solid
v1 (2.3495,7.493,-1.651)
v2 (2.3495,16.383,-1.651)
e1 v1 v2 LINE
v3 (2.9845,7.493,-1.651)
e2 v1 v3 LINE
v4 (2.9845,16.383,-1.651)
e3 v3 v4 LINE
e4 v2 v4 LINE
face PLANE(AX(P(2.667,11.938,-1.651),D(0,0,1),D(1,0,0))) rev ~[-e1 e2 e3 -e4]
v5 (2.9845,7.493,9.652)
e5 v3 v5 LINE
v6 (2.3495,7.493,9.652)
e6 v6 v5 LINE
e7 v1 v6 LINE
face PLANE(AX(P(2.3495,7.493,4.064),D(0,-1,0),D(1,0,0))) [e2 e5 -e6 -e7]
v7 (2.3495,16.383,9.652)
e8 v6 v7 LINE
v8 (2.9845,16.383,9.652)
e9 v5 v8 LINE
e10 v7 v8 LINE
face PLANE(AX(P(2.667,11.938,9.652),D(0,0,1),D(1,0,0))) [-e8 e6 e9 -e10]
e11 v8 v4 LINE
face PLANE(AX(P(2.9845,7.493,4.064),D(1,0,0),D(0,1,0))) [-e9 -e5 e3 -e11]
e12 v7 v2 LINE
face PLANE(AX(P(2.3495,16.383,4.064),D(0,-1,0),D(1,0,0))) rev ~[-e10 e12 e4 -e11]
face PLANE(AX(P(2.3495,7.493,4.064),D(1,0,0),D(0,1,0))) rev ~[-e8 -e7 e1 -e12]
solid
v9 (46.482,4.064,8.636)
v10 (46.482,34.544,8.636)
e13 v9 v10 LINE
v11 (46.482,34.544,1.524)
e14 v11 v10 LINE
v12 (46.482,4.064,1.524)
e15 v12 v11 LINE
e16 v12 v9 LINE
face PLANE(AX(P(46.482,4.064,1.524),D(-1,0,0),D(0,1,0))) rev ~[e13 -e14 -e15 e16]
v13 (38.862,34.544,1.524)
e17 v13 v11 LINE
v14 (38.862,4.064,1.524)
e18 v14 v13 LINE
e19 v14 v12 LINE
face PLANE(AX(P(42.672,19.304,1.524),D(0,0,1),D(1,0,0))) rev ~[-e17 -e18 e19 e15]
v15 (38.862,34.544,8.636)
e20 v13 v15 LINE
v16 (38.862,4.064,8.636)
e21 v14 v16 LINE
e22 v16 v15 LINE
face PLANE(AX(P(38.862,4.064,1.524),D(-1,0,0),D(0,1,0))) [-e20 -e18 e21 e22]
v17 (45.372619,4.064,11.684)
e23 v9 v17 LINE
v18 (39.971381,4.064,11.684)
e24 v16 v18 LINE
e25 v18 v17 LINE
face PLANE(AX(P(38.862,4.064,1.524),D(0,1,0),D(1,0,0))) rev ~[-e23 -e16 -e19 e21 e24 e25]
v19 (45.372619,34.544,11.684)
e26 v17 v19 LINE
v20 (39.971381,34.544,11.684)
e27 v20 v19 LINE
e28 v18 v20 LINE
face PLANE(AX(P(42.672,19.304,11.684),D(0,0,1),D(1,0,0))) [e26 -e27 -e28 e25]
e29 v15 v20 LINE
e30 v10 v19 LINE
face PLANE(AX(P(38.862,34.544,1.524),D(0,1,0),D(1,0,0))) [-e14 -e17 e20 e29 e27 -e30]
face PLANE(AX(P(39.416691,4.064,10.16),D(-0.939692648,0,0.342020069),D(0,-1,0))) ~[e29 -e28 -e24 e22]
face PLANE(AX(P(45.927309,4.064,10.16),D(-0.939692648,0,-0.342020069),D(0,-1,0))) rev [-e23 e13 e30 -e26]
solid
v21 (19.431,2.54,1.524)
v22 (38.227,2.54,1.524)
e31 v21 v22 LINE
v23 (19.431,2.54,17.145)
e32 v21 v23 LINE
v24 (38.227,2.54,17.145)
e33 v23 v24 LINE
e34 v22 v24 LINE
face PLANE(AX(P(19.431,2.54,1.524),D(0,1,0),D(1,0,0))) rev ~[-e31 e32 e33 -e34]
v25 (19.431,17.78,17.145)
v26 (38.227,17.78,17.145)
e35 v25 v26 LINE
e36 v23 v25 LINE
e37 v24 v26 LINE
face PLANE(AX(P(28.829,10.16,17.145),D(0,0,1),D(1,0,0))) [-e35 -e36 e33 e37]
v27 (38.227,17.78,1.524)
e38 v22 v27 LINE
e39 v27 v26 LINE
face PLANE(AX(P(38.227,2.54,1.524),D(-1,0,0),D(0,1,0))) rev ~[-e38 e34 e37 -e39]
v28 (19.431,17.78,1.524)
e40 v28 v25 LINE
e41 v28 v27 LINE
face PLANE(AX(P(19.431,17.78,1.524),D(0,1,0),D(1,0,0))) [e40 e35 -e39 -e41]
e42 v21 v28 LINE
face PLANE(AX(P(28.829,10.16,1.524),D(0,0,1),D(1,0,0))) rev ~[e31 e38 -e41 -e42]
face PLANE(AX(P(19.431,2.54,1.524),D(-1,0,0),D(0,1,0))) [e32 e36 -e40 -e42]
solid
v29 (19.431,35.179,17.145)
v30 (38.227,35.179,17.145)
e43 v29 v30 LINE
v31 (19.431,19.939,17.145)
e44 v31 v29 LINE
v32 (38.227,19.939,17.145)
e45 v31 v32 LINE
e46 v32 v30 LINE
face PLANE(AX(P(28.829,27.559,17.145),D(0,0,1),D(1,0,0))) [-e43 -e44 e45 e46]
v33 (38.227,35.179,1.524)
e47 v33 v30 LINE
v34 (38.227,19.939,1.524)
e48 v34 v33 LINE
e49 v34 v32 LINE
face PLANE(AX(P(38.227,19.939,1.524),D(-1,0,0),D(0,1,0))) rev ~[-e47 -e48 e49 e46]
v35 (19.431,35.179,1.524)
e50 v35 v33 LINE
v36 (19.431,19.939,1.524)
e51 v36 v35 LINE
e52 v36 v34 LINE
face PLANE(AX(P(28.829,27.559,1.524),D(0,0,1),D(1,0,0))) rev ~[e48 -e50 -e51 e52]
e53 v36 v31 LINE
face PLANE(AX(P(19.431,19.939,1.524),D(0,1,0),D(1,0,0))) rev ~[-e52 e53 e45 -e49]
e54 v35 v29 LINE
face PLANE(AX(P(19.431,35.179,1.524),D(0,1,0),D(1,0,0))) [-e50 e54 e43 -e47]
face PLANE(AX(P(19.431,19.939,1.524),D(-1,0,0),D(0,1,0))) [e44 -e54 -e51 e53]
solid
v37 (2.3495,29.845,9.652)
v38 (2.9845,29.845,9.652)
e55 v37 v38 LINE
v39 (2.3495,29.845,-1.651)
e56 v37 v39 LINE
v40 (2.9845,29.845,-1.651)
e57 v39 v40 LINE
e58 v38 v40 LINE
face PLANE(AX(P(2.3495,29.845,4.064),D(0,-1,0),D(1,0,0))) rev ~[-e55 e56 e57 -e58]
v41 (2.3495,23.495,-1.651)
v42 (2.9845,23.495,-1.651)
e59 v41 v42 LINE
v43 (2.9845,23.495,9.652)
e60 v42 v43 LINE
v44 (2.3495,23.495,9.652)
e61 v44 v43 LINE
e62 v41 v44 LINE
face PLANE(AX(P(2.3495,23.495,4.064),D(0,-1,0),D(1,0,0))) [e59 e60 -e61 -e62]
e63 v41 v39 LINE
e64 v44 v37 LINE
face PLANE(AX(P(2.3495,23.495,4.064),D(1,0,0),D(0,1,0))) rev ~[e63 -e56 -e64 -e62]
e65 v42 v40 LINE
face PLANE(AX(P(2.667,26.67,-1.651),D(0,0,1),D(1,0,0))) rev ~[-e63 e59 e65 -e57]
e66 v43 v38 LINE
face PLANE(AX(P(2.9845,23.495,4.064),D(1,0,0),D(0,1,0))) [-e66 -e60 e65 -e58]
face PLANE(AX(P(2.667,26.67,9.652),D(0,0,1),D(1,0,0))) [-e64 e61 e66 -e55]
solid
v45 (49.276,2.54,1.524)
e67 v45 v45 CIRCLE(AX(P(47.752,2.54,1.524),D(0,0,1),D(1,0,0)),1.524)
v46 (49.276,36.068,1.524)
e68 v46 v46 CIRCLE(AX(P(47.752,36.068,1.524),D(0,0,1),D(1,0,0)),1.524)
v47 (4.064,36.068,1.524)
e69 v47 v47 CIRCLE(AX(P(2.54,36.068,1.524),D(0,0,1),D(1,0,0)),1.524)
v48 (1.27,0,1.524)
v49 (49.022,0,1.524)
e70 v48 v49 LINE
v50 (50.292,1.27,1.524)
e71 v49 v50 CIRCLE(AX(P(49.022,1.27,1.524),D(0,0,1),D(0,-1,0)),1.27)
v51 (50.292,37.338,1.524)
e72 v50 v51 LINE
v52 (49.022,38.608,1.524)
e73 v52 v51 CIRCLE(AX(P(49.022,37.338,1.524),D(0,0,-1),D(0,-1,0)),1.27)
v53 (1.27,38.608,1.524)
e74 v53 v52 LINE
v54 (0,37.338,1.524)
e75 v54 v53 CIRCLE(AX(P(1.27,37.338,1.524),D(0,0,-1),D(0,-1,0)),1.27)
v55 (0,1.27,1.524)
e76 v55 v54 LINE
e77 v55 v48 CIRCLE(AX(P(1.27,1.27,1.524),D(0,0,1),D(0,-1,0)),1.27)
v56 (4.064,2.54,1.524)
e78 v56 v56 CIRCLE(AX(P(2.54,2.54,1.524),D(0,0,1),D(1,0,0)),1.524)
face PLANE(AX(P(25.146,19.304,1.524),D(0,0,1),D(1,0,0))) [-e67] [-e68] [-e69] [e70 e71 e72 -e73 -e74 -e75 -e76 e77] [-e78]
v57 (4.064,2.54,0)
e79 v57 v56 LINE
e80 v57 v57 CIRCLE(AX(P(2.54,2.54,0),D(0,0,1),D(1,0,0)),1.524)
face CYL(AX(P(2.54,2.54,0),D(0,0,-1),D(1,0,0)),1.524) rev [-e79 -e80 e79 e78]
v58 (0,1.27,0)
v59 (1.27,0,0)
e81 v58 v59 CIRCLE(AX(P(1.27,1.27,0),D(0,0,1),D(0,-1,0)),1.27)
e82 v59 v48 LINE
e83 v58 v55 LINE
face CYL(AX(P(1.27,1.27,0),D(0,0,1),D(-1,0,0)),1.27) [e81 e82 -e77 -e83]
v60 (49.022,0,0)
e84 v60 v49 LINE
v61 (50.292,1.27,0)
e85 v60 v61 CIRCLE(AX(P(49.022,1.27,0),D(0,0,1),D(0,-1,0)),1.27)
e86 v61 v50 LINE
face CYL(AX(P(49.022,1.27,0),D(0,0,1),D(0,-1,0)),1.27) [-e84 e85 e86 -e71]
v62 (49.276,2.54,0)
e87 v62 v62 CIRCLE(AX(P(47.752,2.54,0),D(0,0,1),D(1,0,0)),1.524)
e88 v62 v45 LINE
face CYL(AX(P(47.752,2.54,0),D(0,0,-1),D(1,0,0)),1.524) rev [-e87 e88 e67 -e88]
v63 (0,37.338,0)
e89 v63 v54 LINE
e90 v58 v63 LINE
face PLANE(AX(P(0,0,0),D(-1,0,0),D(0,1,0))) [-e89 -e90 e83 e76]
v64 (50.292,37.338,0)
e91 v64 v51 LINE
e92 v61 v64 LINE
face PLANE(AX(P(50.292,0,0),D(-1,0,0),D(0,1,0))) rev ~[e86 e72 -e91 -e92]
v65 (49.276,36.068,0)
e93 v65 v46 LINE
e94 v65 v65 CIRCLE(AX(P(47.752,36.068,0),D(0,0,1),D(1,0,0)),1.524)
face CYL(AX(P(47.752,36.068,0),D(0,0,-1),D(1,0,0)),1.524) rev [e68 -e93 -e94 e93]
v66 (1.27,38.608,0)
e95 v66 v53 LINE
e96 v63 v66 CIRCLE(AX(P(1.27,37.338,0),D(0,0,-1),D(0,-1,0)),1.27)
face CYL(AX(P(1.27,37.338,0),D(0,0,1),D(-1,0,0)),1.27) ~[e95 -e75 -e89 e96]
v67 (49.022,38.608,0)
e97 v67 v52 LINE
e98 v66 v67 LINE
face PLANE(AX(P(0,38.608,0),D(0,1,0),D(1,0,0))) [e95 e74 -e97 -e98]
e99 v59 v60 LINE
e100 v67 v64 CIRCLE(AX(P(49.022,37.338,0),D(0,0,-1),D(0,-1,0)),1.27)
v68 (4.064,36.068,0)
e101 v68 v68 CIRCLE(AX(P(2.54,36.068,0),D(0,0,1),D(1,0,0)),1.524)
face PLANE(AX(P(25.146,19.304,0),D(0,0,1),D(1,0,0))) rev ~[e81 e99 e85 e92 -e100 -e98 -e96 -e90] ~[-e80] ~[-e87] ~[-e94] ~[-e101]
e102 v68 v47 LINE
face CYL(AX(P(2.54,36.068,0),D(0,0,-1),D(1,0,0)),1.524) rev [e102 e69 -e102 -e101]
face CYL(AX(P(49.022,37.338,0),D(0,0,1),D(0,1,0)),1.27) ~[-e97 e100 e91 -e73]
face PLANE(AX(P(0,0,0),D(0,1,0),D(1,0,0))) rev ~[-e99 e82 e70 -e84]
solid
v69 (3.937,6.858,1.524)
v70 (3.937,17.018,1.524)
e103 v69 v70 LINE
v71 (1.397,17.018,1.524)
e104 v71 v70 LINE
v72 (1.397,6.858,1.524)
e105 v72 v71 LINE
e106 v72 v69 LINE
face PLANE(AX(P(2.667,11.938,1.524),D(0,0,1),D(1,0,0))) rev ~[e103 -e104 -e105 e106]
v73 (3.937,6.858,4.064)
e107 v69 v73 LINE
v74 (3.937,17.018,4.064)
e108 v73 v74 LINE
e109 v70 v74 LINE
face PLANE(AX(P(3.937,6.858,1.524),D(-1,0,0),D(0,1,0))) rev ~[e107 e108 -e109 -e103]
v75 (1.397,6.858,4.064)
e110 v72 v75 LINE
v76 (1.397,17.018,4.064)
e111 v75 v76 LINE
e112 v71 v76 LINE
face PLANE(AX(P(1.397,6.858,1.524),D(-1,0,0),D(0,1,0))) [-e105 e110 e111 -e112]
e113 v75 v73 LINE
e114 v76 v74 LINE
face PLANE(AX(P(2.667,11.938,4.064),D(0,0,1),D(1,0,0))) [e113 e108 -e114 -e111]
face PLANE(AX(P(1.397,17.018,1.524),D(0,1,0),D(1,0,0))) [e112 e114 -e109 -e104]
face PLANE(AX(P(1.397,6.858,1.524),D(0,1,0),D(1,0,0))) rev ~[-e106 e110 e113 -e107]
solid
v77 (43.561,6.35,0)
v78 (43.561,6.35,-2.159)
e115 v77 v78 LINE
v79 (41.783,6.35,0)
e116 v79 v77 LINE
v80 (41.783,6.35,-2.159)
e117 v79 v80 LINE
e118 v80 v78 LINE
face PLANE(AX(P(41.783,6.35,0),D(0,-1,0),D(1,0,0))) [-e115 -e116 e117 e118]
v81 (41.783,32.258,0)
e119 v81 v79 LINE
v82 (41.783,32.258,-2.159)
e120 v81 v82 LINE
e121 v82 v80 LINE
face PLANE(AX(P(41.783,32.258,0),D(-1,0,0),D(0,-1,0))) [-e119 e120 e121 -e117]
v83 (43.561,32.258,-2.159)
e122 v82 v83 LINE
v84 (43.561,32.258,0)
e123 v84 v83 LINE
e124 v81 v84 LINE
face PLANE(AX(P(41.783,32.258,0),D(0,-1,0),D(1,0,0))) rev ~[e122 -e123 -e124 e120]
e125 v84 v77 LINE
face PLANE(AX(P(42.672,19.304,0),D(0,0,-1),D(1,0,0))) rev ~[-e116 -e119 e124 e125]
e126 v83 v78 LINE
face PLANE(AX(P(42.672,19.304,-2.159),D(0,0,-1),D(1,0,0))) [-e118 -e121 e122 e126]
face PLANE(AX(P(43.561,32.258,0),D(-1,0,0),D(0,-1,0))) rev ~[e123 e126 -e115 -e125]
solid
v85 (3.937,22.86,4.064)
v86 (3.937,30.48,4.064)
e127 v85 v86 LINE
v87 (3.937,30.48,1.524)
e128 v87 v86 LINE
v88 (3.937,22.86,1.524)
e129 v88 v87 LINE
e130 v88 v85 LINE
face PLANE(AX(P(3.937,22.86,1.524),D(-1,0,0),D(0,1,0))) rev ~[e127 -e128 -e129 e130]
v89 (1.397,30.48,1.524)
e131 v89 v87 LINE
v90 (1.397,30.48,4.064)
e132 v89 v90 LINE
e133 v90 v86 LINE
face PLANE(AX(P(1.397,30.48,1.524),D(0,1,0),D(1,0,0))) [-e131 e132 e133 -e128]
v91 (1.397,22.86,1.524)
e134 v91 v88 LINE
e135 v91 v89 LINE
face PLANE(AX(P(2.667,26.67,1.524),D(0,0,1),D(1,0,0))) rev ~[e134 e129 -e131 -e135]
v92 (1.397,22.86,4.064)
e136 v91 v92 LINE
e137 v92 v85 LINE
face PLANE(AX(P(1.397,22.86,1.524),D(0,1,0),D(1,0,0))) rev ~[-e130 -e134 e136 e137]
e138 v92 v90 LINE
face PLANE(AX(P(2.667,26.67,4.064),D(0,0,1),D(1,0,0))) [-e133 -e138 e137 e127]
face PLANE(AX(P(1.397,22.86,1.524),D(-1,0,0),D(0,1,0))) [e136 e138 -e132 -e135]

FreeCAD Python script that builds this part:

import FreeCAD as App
import Part
import Sketcher
from FreeCAD import Vector
Q = App.Units.Quantity


def edges_at(feature, points):
    """Names of the edges that pass closest to the given points."""
    edges = feature.Shape.Edges
    near = lambda p: min(range(len(edges)), key=lambda i: edges[i].distToShape(Part.Vertex(*p))[0])
    return sorted({f"Edge{near(p) + 1}" for p in points})

doc = App.newDocument("Part")
body = doc.addObject("PartDesign::Body", "Body")

sketch1 = body.newObject("Sketcher::SketchObject", "Sketch")
sketch1.AttachmentSupport = (doc.getObject("XY_Plane"), [""])
sketch1.MapMode = "FlatFace"
sketch1.addGeometry([
    Part.LineSegment(Vector(0, 38.608, 0), Vector(0, 0, 0)),
    Part.LineSegment(Vector(0, 0, 0), Vector(50.292, 0, 0)),
    Part.LineSegment(Vector(50.292, 0, 0), Vector(50.292, 38.608, 0)),
    Part.LineSegment(Vector(50.292, 38.608, 0), Vector(0, 38.608, 0)),
    Part.Circle(Vector(2.54, 2.54, 0), Vector(0, 0, 1), 1.524),
    Part.Circle(Vector(47.752, 2.54, 0), Vector(0, 0, 1), 1.524),
    Part.Circle(Vector(2.54, 36.068, 0), Vector(0, 0, 1), 1.524),
    Part.Circle(Vector(47.752, 36.068, 0), Vector(0, 0, 1), 1.524),
], False)
sketch1.addConstraint([
    Sketcher.Constraint("Coincident", 0, 2, 1, 1),
    Sketcher.Constraint("Coincident", 1, 2, 2, 1),
    Sketcher.Constraint("Coincident", 2, 2, 3, 1),
    Sketcher.Constraint("Coincident", 3, 2, 0, 1),
    Sketcher.Constraint("Vertical", 0),
    Sketcher.Constraint("Horizontal", 1),
    Sketcher.Constraint("Vertical", 2),
    Sketcher.Constraint("Horizontal", 3),
    Sketcher.Constraint("Coincident", 0, 2, -1, 1),
    Sketcher.Constraint("Equal", 4, 5),
    Sketcher.Constraint("Equal", 5, 6),
    Sketcher.Constraint("Equal", 6, 7),
    Sketcher.Constraint("Horizontal", 4, 3, 5, 3),
    Sketcher.Constraint("Horizontal", 6, 3, 7, 3),
    Sketcher.Constraint("Vertical", 4, 3, 6, 3),
    Sketcher.Constraint("Vertical", 5, 3, 7, 3),
    Sketcher.Constraint("Diameter", 4, Q("0.12 in")),
    Sketcher.Constraint("DistanceX", 1, 1, 1, 2, Q("1.98 in")),
    Sketcher.Constraint("DistanceY", 0, 2, 0, 1, Q("1.52 in")),
    Sketcher.Constraint("DistanceX", -1, 1, 4, 3, Q("0.1 in")),
    Sketcher.Constraint("DistanceY", -1, 1, 4, 3, Q("0.1 in")),
    Sketcher.Constraint("DistanceX", 5, 3, 1, 2, Q("0.1 in")),
    Sketcher.Constraint("DistanceY", 7, 3, 2, 2, Q("0.1 in")),
])
pad1 = body.newObject("PartDesign::Pad", "Pad")
pad1.Profile = sketch1
pad1.Length = Q("0.06 in")
doc.recompute()

fillet = body.newObject("PartDesign::Fillet", "Fillet")
fillet.Base = (pad1, edges_at(pad1, [
    (50.292, 38.608, 0.762),
    (0, 38.608, 0.762),
    (0, 0, 0.762),
    (50.292, 0, 0.762),
]))
fillet.Radius = Q("0.05 in")
body2 = doc.addObject("PartDesign::Body", "Body001")

sketch2 = body2.newObject("Sketcher::SketchObject", "Sketch001")
sketch2.AttachmentSupport = (doc.getObject("XY_Plane001"), [""])
sketch2.MapMode = "FlatFace"
sketch2.AttachmentOffset = App.Placement(Vector(0, 0, 0.06 * 25.4), App.Rotation())
sketch2.addGeometry([
    Part.LineSegment(Vector(38.862, 34.544, 0), Vector(38.862, 4.064, 0)),
    Part.LineSegment(Vector(38.862, 4.064, 0), Vector(46.482, 4.064, 0)),
    Part.LineSegment(Vector(46.482, 4.064, 0), Vector(46.482, 34.544, 0)),
    Part.LineSegment(Vector(46.482, 34.544, 0), Vector(38.862, 34.544, 0)),
], False)
sketch2.addConstraint([
    Sketcher.Constraint("Coincident", 0, 2, 1, 1),
    Sketcher.Constraint("Coincident", 1, 2, 2, 1),
    Sketcher.Constraint("Coincident", 2, 2, 3, 1),
    Sketcher.Constraint("Coincident", 3, 2, 0, 1),
    Sketcher.Constraint("Vertical", 0),
    Sketcher.Constraint("Horizontal", 1),
    Sketcher.Constraint("Vertical", 2),
    Sketcher.Constraint("Horizontal", 3),
    Sketcher.Constraint("DistanceX", 1, 1, 1, 2, Q("0.3 in")),
    Sketcher.Constraint("DistanceY", 0, 2, 0, 1, Q("1.2 in")),
    Sketcher.Constraint("DistanceX", -1, 1, 0, 2, Q("1.53 in")),
    Sketcher.Constraint("DistanceY", -1, 1, 0, 2, Q("0.16 in")),
])
pad2 = body2.newObject("PartDesign::Pad", "Pad001")
pad2.Profile = sketch2
pad2.Length = Q("0.4 in")
doc.recompute()

chamfer = body2.newObject("PartDesign::Chamfer", "Chamfer")
chamfer.Base = (pad2, edges_at(pad2, [(46.482, 19.304, 11.684), (38.862, 19.304, 11.684)]))
chamfer.ChamferType = "Two distances"
chamfer.Size = Q("0.12 in")
chamfer.Size2 = 1.109381
body3 = doc.addObject("PartDesign::Body", "Body002")
body3.AllowCompound = True

sketch3 = body3.newObject("Sketcher::SketchObject", "Sketch002")
sketch3.AttachmentSupport = (doc.getObject("XY_Plane002"), [""])
sketch3.MapMode = "FlatFace"
sketch3.AttachmentOffset = App.Placement(Vector(0, 0, 0.06 * 25.4), App.Rotation())
sketch3.addGeometry([
    Part.LineSegment(Vector(19.431, 35.179, 0), Vector(19.431, 19.939, 0)),
    Part.LineSegment(Vector(19.431, 19.939, 0), Vector(38.227, 19.939, 0)),
    Part.LineSegment(Vector(38.227, 19.939, 0), Vector(38.227, 35.179, 0)),
    Part.LineSegment(Vector(38.227, 35.179, 0), Vector(19.431, 35.179, 0)),
    Part.LineSegment(Vector(19.431, 17.78, 0), Vector(19.431, 2.54, 0)),
    Part.LineSegment(Vector(19.431, 2.54, 0), Vector(38.227, 2.54, 0)),
    Part.LineSegment(Vector(38.227, 2.54, 0), Vector(38.227, 17.78, 0)),
    Part.LineSegment(Vector(38.227, 17.78, 0), Vector(19.431, 17.78, 0)),
], False)
sketch3.addConstraint([
    Sketcher.Constraint("Coincident", 0, 2, 1, 1),
    Sketcher.Constraint("Coincident", 1, 2, 2, 1),
    Sketcher.Constraint("Coincident", 2, 2, 3, 1),
    Sketcher.Constraint("Coincident", 3, 2, 0, 1),
    Sketcher.Constraint("Coincident", 4, 2, 5, 1),
    Sketcher.Constraint("Coincident", 5, 2, 6, 1),
    Sketcher.Constraint("Coincident", 6, 2, 7, 1),
    Sketcher.Constraint("Coincident", 7, 2, 4, 1),
    Sketcher.Constraint("Vertical", 0),
    Sketcher.Constraint("Horizontal", 1),
    Sketcher.Constraint("Vertical", 2),
    Sketcher.Constraint("Horizontal", 3),
    Sketcher.Constraint("Vertical", 4),
    Sketcher.Constraint("Horizontal", 5),
    Sketcher.Constraint("Vertical", 6),
    Sketcher.Constraint("Horizontal", 7),
    Sketcher.Constraint("Vertical", 3, 2, 4, 2),
    Sketcher.Constraint("Vertical", 2, 2, 5, 2),
    Sketcher.Constraint("Equal", 2, 4),
    Sketcher.Constraint("DistanceY", 0, 2, 0, 1, Q("0.6 in")),
    Sketcher.Constraint("DistanceX", 1, 1, 1, 2, Q("0.74 in")),
    Sketcher.Constraint("DistanceY", -1, 1, 4, 2, Q("0.1 in")),
    Sketcher.Constraint("DistanceX", -1, 1, 0, 2, Q("0.765 in")),
    Sketcher.Constraint("DistanceY", -1, 1, 0, 2, Q("0.785 in")),
])
pad3 = body3.newObject("PartDesign::Pad", "Pad002")
pad3.Profile = sketch3
pad3.Length = Q("0.615 in")
body4 = doc.addObject("PartDesign::Body", "Body003")
body4.AllowCompound = True

sketch4 = body4.newObject("Sketcher::SketchObject", "Sketch003")
sketch4.AttachmentSupport = (doc.getObject("XY_Plane003"), [""])
sketch4.MapMode = "FlatFace"
sketch4.AttachmentOffset = App.Placement(Vector(0, 0, 0.06 * 25.4), App.Rotation())
sketch4.addGeometry([
    Part.LineSegment(Vector(1.397, 30.48, 0), Vector(1.397, 22.86, 0)),
    Part.LineSegment(Vector(1.397, 22.86, 0), Vector(3.937, 22.86, 0)),
    Part.LineSegment(Vector(3.937, 22.86, 0), Vector(3.937, 30.48, 0)),
    Part.LineSegment(Vector(3.937, 30.48, 0), Vector(1.397, 30.48, 0)),
    Part.LineSegment(Vector(1.397, 17.018, 0), Vector(1.397, 6.858, 0)),
    Part.LineSegment(Vector(1.397, 6.858, 0), Vector(3.937, 6.858, 0)),
    Part.LineSegment(Vector(3.937, 6.858, 0), Vector(3.937, 17.018, 0)),
    Part.LineSegment(Vector(3.937, 17.018, 0), Vector(1.397, 17.018, 0)),
], False)
sketch4.addConstraint([
    Sketcher.Constraint("Coincident", 0, 2, 1, 1),
    Sketcher.Constraint("Coincident", 1, 2, 2, 1),
    Sketcher.Constraint("Coincident", 2, 2, 3, 1),
    Sketcher.Constraint("Coincident", 3, 2, 0, 1),
    Sketcher.Constraint("Coincident", 4, 2, 5, 1),
    Sketcher.Constraint("Coincident", 5, 2, 6, 1),
    Sketcher.Constraint("Coincident", 6, 2, 7, 1),
    Sketcher.Constraint("Coincident", 7, 2, 4, 1),
    Sketcher.Constraint("Vertical", 0),
    Sketcher.Constraint("Horizontal", 1),
    Sketcher.Constraint("Vertical", 2),
    Sketcher.Constraint("Horizontal", 3),
    Sketcher.Constraint("Vertical", 4),
    Sketcher.Constraint("Horizontal", 5),
    Sketcher.Constraint("Vertical", 6),
    Sketcher.Constraint("Horizontal", 7),
    Sketcher.Constraint("Vertical", 3, 2, 4, 2),
    Sketcher.Constraint("Vertical", 2, 2, 5, 2),
    Sketcher.Constraint("DistanceX", 1, 1, 1, 2, Q("0.1 in")),
    Sketcher.Constraint("DistanceY", 0, 2, 0, 1, Q("0.3 in")),
    Sketcher.Constraint("DistanceY", 4, 2, 4, 1, Q("0.4 in")),
    Sketcher.Constraint("DistanceY", -1, 1, 0, 2, Q("0.9 in")),
    Sketcher.Constraint("DistanceY", -1, 1, 4, 2, Q("0.27 in")),
    Sketcher.Constraint("DistanceX", -1, 1, 0, 2, Q("0.055 in")),
])
pad4 = body4.newObject("PartDesign::Pad", "Pad003")
pad4.Profile = sketch4
pad4.Length = Q("0.1 in")
body5 = doc.addObject("PartDesign::Body", "Body004")
body5.AllowCompound = True

sketch5 = body5.newObject("Sketcher::SketchObject", "Sketch004")
sketch5.AttachmentSupport = (doc.getObject("XY_Plane004"), [""])
sketch5.MapMode = "FlatFace"
sketch5.AttachmentOffset = App.Placement(Vector(0, 0, 0.16 * 25.4), App.Rotation())
sketch5.addGeometry([
    Part.LineSegment(Vector(2.3495, 29.845, 0), Vector(2.3495, 23.495, 0)),
    Part.LineSegment(Vector(2.3495, 23.495, 0), Vector(2.9845, 23.495, 0)),
    Part.LineSegment(Vector(2.9845, 23.495, 0), Vector(2.9845, 29.845, 0)),
    Part.LineSegment(Vector(2.9845, 29.845, 0), Vector(2.3495, 29.845, 0)),
    Part.LineSegment(Vector(2.3495, 16.383, 0), Vector(2.3495, 7.493, 0)),
    Part.LineSegment(Vector(2.3495, 7.493, 0), Vector(2.9845, 7.493, 0)),
    Part.LineSegment(Vector(2.9845, 7.493, 0), Vector(2.9845, 16.383, 0)),
    Part.LineSegment(Vector(2.9845, 16.383, 0), Vector(2.3495, 16.383, 0)),
], False)
sketch5.addConstraint([
    Sketcher.Constraint("Coincident", 0, 2, 1, 1),
    Sketcher.Constraint("Coincident", 1, 2, 2, 1),
    Sketcher.Constraint("Coincident", 2, 2, 3, 1),
    Sketcher.Constraint("Coincident", 3, 2, 0, 1),
    Sketcher.Constraint("Coincident", 4, 2, 5, 1),
    Sketcher.Constraint("Coincident", 5, 2, 6, 1),
    Sketcher.Constraint("Coincident", 6, 2, 7, 1),
    Sketcher.Constraint("Coincident", 7, 2, 4, 1),
    Sketcher.Constraint("Vertical", 0),
    Sketcher.Constraint("Horizontal", 1),
    Sketcher.Constraint("Vertical", 2),
    Sketcher.Constraint("Horizontal", 3),
    Sketcher.Constraint("Vertical", 4),
    Sketcher.Constraint("Horizontal", 5),
    Sketcher.Constraint("Vertical", 6),
    Sketcher.Constraint("Horizontal", 7),
    Sketcher.Constraint("Vertical", 3, 2, 4, 2),
    Sketcher.Constraint("Vertical", 2, 2, 5, 2),
    Sketcher.Constraint("DistanceY", 0, 2, 0, 1, Q("0.25 in")),
    Sketcher.Constraint("DistanceY", 4, 2, 4, 1, Q("0.35 in")),
    Sketcher.Constraint("DistanceX", 1, 1, 1, 2, Q("0.025 in")),
    Sketcher.Constraint("DistanceY", 4, 2, 0, 2, Q("0.63 in")),
    Sketcher.Constraint("DistanceY", -1, 1, 0, 2, Q("0.925 in")),
    Sketcher.Constraint("DistanceX", -1, 1, 0, 2, Q("0.0925 in")),
])
pad5 = body5.newObject("PartDesign::Pad", "Pad004")
pad5.Profile = sketch5
pad5.Type = "TwoLengths"
pad5.Length = Q("0.22 in")
pad5.Length2 = Q("0.225 in")
body6 = doc.addObject("PartDesign::Body", "Body005")

sketch6 = body6.newObject("Sketcher::SketchObject", "Sketch005")
sketch6.AttachmentSupport = (doc.getObject("XY_Plane005"), [""])
sketch6.MapMode = "FlatFace"
sketch6.addGeometry([
    Part.LineSegment(Vector(41.783, 6.35, 0), Vector(41.783, 32.258, 0)),
    Part.LineSegment(Vector(41.783, 32.258, 0), Vector(43.561, 32.258, 0)),
    Part.LineSegment(Vector(43.561, 32.258, 0), Vector(43.561, 6.35, 0)),
    Part.LineSegment(Vector(43.561, 6.35, 0), Vector(41.783, 6.35, 0)),
], False)
sketch6.addConstraint([
    Sketcher.Constraint("Coincident", 0, 2, 1, 1),
    Sketcher.Constraint("Coincident", 1, 2, 2, 1),
    Sketcher.Constraint("Coincident", 2, 2, 3, 1),
    Sketcher.Constraint("Coincident", 3, 2, 0, 1),
    Sketcher.Constraint("Vertical", 0),
    Sketcher.Constraint("Horizontal", 1),
    Sketcher.Constraint("Vertical", 2),
    Sketcher.Constraint("Horizontal", 3),
    Sketcher.Constraint("DistanceX", 1, 1, 1, 2, Q("0.07 in")),
    Sketcher.Constraint("DistanceY", 0, 1, 0, 2, Q("1.02 in")),
    Sketcher.Constraint("DistanceY", -1, 1, 0, 2, Q("1.27 in")),
    Sketcher.Constraint("DistanceX", -1, 1, 0, 2, Q("1.645 in")),
])
pad6 = body6.newObject("PartDesign::Pad", "Pad005")
pad6.Profile = sketch6
pad6.Length = Q("0.085 in")
pad6.Reversed = True

doc.recompute()
